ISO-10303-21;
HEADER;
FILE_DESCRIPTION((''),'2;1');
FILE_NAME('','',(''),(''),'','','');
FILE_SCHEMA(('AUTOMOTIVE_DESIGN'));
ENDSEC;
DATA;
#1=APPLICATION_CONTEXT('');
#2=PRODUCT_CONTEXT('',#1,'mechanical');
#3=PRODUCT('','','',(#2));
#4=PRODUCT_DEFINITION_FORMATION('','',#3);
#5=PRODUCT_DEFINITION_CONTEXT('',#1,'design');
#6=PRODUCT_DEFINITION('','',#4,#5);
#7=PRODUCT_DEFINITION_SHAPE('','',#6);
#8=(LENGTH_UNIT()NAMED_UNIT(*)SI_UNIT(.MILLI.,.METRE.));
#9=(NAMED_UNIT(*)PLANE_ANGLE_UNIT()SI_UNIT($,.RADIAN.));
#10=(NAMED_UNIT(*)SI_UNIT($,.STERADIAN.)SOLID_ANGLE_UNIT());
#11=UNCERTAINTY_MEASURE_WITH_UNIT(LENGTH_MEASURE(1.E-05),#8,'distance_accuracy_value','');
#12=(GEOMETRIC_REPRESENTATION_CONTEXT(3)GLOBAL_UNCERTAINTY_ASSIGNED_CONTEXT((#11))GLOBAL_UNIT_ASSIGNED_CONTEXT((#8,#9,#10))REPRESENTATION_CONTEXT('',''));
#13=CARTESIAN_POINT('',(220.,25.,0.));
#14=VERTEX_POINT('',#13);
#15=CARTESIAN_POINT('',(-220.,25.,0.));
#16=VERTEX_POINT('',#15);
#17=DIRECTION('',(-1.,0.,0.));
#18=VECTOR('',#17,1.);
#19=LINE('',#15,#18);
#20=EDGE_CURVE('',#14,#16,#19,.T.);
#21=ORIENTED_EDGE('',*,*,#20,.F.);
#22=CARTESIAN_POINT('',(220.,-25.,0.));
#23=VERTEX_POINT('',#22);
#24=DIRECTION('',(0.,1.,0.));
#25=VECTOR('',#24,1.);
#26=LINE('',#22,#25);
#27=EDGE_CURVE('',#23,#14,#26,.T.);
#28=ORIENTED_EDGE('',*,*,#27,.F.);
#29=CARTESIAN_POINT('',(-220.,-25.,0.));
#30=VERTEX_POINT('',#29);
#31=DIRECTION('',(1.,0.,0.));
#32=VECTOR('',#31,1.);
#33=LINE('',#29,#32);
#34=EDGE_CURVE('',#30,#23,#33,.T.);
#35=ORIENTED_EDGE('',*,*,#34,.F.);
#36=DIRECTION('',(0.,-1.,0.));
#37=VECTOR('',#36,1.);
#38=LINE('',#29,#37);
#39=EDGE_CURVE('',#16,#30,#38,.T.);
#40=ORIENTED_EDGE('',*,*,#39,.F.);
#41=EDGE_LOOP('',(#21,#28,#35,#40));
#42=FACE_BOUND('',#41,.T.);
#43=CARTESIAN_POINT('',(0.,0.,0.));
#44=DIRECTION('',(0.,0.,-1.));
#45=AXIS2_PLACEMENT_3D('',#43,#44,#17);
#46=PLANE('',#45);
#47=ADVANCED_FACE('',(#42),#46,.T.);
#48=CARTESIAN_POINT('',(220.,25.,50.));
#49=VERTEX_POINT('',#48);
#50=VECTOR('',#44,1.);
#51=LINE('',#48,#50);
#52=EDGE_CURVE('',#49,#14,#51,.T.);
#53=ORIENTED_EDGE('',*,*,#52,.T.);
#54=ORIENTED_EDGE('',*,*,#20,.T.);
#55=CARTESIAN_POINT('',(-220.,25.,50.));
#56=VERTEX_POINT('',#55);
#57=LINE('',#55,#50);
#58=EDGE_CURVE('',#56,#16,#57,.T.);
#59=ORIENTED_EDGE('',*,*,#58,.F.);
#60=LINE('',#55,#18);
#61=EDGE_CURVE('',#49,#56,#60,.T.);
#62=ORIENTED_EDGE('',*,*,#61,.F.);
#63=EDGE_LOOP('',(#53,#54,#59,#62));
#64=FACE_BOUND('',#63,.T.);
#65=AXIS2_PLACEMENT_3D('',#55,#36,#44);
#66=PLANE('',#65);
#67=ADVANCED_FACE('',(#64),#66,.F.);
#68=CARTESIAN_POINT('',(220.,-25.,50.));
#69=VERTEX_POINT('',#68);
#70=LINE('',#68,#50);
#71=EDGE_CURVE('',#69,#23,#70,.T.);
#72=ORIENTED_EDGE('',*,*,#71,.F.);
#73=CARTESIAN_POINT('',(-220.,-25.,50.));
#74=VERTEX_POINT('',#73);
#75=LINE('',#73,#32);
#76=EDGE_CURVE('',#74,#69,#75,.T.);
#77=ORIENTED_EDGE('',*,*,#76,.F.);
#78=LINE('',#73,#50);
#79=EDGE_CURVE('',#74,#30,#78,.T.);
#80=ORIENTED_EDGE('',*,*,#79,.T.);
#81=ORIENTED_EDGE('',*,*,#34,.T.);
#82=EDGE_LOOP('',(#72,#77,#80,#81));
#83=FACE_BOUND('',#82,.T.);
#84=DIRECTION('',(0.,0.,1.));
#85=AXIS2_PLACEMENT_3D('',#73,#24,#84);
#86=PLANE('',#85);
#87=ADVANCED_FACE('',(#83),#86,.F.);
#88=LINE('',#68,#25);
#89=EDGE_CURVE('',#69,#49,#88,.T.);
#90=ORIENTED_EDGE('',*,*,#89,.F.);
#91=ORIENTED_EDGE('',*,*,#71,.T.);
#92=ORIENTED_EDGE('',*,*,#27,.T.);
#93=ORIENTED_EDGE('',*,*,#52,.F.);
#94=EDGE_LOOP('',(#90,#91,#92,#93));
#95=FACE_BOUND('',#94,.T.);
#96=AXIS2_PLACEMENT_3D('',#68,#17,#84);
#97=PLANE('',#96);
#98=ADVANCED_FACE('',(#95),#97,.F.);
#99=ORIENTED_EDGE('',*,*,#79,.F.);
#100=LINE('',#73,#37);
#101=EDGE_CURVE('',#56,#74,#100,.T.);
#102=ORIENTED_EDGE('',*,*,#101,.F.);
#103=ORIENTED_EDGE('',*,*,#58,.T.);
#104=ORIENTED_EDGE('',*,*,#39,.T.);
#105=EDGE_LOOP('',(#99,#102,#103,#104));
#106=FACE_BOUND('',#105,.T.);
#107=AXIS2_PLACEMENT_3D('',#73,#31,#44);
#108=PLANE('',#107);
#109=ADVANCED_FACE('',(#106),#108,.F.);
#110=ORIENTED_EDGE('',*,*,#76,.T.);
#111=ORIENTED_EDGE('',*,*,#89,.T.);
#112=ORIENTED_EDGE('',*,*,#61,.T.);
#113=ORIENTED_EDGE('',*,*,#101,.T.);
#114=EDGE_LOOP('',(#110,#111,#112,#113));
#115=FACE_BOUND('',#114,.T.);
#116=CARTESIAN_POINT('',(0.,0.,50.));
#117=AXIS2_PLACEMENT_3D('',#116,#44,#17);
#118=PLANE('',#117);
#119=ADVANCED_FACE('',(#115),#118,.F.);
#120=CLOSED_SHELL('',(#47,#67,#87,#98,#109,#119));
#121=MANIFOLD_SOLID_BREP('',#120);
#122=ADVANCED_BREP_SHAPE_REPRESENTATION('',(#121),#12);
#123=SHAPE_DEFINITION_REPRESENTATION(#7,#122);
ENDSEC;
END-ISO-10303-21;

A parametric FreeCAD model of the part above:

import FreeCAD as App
import Part
import Sketcher
from FreeCAD import Vector

doc = App.newDocument("Part")
body = doc.addObject("PartDesign::Body", "Body")

# Sketch on XY plane
sketch1 = body.newObject("Sketcher::SketchObject", "Sketch")
sketch1.AttachmentSupport = (doc.getObject("XY_Plane"), [""])
sketch1.MapMode = "FlatFace"
sketch1.addGeometry([
    Part.LineSegment(Vector(-220, 25, 0), Vector(-220, -25, 0)),
    Part.LineSegment(Vector(-220, -25, 0), Vector(220, -25, 0)),
    Part.LineSegment(Vector(220, -25, 0), Vector(220, 25, 0)),
    Part.LineSegment(Vector(220, 25, 0), Vector(-220, 25, 0)),
], False)
sketch1.addConstraint([
    Sketcher.Constraint("Coincident", 0, 2, 1, 1),
    Sketcher.Constraint("Coincident", 1, 2, 2, 1),
    Sketcher.Constraint("Coincident", 2, 2, 3, 1),
    Sketcher.Constraint("Coincident", 3, 2, 0, 1),
    Sketcher.Constraint("Vertical", 0),
    Sketcher.Constraint("Horizontal", 1),
    Sketcher.Constraint("Vertical", 2),
    Sketcher.Constraint("Horizontal", 3),
    Sketcher.Constraint("Symmetric", 0, 2, 2, 2, -1, 1),
    Sketcher.Constraint("DistanceX", 1, 1, 1, 2, 440.0),
    Sketcher.Constraint("DistanceY", 0, 2, 0, 1, 50.0),
])
pad1 = body.newObject("PartDesign::Pad", "Pad")
pad1.Profile = sketch1
pad1.Length = 50

doc.recompute()
